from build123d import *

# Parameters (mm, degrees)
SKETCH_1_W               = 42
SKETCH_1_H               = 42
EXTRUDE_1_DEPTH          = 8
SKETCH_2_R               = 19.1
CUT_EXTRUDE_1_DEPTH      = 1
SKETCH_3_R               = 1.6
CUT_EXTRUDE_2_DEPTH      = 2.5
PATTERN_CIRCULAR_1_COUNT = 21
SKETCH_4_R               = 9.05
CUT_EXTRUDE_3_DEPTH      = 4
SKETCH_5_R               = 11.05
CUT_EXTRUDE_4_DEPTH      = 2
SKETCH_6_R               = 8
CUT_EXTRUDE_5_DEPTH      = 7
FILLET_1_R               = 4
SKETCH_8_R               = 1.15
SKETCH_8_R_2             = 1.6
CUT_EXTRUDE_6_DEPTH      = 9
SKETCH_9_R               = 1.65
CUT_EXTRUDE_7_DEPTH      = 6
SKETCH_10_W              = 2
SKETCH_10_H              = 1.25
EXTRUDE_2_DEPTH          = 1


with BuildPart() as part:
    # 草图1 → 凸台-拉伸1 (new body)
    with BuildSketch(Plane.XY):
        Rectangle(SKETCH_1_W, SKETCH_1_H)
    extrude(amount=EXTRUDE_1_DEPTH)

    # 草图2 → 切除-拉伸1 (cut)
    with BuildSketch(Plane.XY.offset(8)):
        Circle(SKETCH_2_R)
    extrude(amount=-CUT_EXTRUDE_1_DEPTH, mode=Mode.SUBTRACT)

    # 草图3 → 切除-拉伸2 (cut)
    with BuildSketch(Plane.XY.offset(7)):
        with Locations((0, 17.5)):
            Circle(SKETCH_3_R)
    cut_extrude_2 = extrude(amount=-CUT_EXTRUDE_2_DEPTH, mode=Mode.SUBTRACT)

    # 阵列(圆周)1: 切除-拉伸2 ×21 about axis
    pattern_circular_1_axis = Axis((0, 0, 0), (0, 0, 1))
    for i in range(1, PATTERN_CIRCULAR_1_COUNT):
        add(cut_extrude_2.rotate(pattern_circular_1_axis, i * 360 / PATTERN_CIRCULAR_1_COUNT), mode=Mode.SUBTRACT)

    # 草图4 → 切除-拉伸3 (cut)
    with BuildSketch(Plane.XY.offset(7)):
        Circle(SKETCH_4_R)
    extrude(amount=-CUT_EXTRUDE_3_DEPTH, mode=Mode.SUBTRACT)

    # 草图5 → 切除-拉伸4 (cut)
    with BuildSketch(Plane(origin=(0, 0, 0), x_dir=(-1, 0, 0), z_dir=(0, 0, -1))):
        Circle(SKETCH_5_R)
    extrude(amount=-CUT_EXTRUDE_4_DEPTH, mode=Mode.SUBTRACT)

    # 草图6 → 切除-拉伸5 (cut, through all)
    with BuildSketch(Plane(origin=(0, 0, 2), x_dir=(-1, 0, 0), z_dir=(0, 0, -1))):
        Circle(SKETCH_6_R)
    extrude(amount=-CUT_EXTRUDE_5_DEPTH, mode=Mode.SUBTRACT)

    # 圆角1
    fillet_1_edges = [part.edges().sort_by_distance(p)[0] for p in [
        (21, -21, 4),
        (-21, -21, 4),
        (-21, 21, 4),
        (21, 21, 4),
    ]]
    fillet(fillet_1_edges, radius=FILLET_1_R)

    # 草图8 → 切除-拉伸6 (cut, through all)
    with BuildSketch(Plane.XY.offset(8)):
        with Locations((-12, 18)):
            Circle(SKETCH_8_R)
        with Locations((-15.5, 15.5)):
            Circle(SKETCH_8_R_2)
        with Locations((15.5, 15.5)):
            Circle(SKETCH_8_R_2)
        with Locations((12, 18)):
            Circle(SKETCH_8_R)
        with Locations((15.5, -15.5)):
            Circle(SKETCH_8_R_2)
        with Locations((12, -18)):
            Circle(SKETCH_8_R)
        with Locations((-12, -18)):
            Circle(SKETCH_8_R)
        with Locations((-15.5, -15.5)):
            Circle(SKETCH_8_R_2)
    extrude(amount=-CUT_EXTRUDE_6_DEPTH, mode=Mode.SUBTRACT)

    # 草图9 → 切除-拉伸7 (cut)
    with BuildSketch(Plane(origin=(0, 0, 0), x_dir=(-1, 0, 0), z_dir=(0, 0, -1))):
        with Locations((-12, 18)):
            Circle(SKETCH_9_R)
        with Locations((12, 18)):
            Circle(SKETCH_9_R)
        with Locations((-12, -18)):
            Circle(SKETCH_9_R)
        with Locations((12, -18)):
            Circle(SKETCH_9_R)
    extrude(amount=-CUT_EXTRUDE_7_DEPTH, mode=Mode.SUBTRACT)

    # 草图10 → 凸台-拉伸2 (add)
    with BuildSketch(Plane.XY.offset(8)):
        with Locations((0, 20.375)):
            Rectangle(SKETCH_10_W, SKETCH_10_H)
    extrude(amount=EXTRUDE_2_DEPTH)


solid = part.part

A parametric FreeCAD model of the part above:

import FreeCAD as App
import Part
import Sketcher
from FreeCAD import Vector


def edges_at(feature, points):
    """Names of the edges that pass closest to the given points."""
    edges = feature.Shape.Edges
    near = lambda p: min(range(len(edges)), key=lambda i: edges[i].distToShape(Part.Vertex(*p))[0])
    return sorted({f"Edge{near(p) + 1}" for p in points})


def add_polygon(sketch, points):
    """Adds a closed chain of lines whose ends are joined by coincident constraints."""
    first, n = sketch.GeometryCount, len(points)
    for a, b in zip(points, points[1:] + points[:1]):
        sketch.addGeometry(Part.LineSegment(App.Vector(*a, 0), App.Vector(*b, 0)), False)
    for i in range(n):
        sketch.addConstraint(Sketcher.Constraint("Coincident", first + i, 2, first + (i + 1) % n, 1))

doc = App.newDocument("Part")
body = doc.addObject("PartDesign::Body", "Body")

# Sketch on XY plane
sketch1 = body.newObject("Sketcher::SketchObject", "Sketch")
sketch1.AttachmentSupport = (doc.getObject("XY_Plane"), [""])
sketch1.MapMode = "FlatFace"
add_polygon(sketch1, [(-21, 21), (-21, -21), (21, -21), (21, 21)])  # lines 0-3
sketch1.addConstraint([
    Sketcher.Constraint("Vertical", 0),
    Sketcher.Constraint("Horizontal", 1),
    Sketcher.Constraint("Vertical", 2),
    Sketcher.Constraint("Horizontal", 3),
    Sketcher.Constraint("Symmetric", 0, 2, 2, 2, -1, 1),
    Sketcher.Constraint("Equal", 3, 0),
    Sketcher.Constraint("DistanceX", 1, 1, 1, 2, 42.0),
])
pad1 = body.newObject("PartDesign::Pad", "Pad")
pad1.Profile = sketch1
pad1.Length = 8

# Sketch on XY plane
sketch2 = body.newObject("Sketcher::SketchObject", "Sketch001")
sketch2.AttachmentSupport = (doc.getObject("XY_Plane"), [""])
sketch2.MapMode = "FlatFace"
sketch2.AttachmentOffset = App.Placement(Vector(0, 0, 8), App.Rotation())
sketch2.addGeometry(Part.Circle(Vector(0, 0, 0), Vector(0, 0, 1), 19.1), False)
sketch2.addConstraint([
    Sketcher.Constraint("Coincident", 0, 3, -1, 1),
    Sketcher.Constraint("Diameter", 0, 38.2),
])
pocket1 = body.newObject("PartDesign::Pocket", "Pocket")
pocket1.Profile = sketch2
pocket1.Length = 1

# Sketch on XY plane
sketch3 = body.newObject("Sketcher::SketchObject", "Sketch002")
sketch3.AttachmentSupport = (doc.getObject("XY_Plane"), [""])
sketch3.MapMode = "FlatFace"
sketch3.AttachmentOffset = App.Placement(Vector(0, 0, 7), App.Rotation())
sketch3.addGeometry(Part.Circle(Vector(0, 17.5, 0), Vector(0, 0, 1), 1.6), False)
sketch3.addConstraint([
    Sketcher.Constraint("PointOnObject", 0, 3, -2),
    Sketcher.Constraint("Diameter", 0, 3.2),
    Sketcher.Constraint("DistanceY", -1, 1, 0, 3, 17.5),
])
pocket2 = body.newObject("PartDesign::Pocket", "Pocket001")
pocket2.Profile = sketch3
pocket2.Length = 2.5
doc.recompute()

polarpattern = body.newObject("PartDesign::PolarPattern", "PolarPattern")
polarpattern.Originals = [pocket2]
polarpattern.Axis = (doc.getObject("Z_Axis"), [""])
polarpattern.Angle = 360
polarpattern.Occurrences = 21
body.Tip = polarpattern

# Sketch on XY plane
sketch4 = body.newObject("Sketcher::SketchObject", "Sketch003")
sketch4.AttachmentSupport = (doc.getObject("XY_Plane"), [""])
sketch4.MapMode = "FlatFace"
sketch4.AttachmentOffset = App.Placement(Vector(0, 0, 7), App.Rotation())
sketch4.addGeometry(Part.Circle(Vector(0, 0, 0), Vector(0, 0, 1), 9.05), False)
sketch4.addConstraint([
    Sketcher.Constraint("Coincident", 0, 3, -1, 1),
    Sketcher.Constraint("Diameter", 0, 18.1),
])
pocket3 = body.newObject("PartDesign::Pocket", "Pocket002")
pocket3.Profile = sketch4
pocket3.Length = 4

# Sketch on XY plane
sketch5 = body.newObject("Sketcher::SketchObject", "Sketch004")
sketch5.AttachmentSupport = (doc.getObject("XY_Plane"), [""])
sketch5.MapMode = "FlatFace"
sketch5.addGeometry(Part.Circle(Vector(0, 0, 0), Vector(0, 0, 1), 11.05), False)
sketch5.addConstraint([
    Sketcher.Constraint("Coincident", 0, 3, -1, 1),
    Sketcher.Constraint("Diameter", 0, 22.1),
])
pocket4 = body.newObject("PartDesign::Pocket", "Pocket003")
pocket4.Profile = sketch5
pocket4.Length = 2
pocket4.Reversed = True

# Sketch on XY plane
sketch6 = body.newObject("Sketcher::SketchObject", "Sketch005")
sketch6.AttachmentSupport = (doc.getObject("XY_Plane"), [""])
sketch6.MapMode = "FlatFace"
sketch6.AttachmentOffset = App.Placement(Vector(0, 0, 2), App.Rotation())
sketch6.addGeometry(Part.Circle(Vector(0, 0, 0), Vector(0, 0, 1), 8), False)
sketch6.addConstraint([
    Sketcher.Constraint("Coincident", 0, 3, -1, 1),
    Sketcher.Constraint("Diameter", 0, 16.0),
])
pocket5 = body.newObject("PartDesign::Pocket", "Pocket004")
pocket5.Profile = sketch6
pocket5.Type = "ThroughAll"
pocket5.Reversed = True
doc.recompute()

fillet = body.newObject("PartDesign::Fillet", "Fillet")
fillet.Base = (pocket5, edges_at(pocket5, [
    (21, -21, 4),
    (-21, -21, 4),
    (-21, 21, 4),
    (21, 21, 4),
]))
fillet.Radius = 4

# Sketch on XY plane
sketch7 = body.newObject("Sketcher::SketchObject", "Sketch006")
sketch7.AttachmentSupport = (doc.getObject("XY_Plane"), [""])
sketch7.MapMode = "FlatFace"
sketch7.AttachmentOffset = App.Placement(Vector(0, 0, 8), App.Rotation())
sketch7.addGeometry([
    Part.Circle(Vector(-12, 18, 0), Vector(0, 0, 1), 1.15),  # 0
    Part.Circle(Vector(-15.5, 15.5, 0), Vector(0, 0, 1), 1.6),  # 1
    Part.Circle(Vector(15.5, 15.5, 0), Vector(0, 0, 1), 1.6),  # 2
    Part.Circle(Vector(12, 18, 0), Vector(0, 0, 1), 1.15),  # 3
    Part.Circle(Vector(15.5, -15.5, 0), Vector(0, 0, 1), 1.6),  # 4
    Part.Circle(Vector(12, -18, 0), Vector(0, 0, 1), 1.15),  # 5
    Part.Circle(Vector(-12, -18, 0), Vector(0, 0, 1), 1.15),  # 6
    Part.Circle(Vector(-15.5, -15.5, 0), Vector(0, 0, 1), 1.6),  # 7
], False)
sketch7.addConstraint([
    Sketcher.Constraint("Equal", 1, 2),
    Sketcher.Constraint("Equal", 0, 3),
    Sketcher.Constraint("Equal", 2, 4),
    Sketcher.Constraint("Equal", 3, 5),
    Sketcher.Constraint("Equal", 5, 6),
    Sketcher.Constraint("Equal", 4, 7),
    Sketcher.Constraint("Symmetric", 1, 3, 4, 3, -1, 1),
    Sketcher.Constraint("Symmetric", 0, 3, 5, 3, -1, 1),
    Sketcher.Constraint("Symmetric", 3, 3, 6, 3, -1, 1),
    Sketcher.Constraint("Symmetric", 2, 3, 7, 3, -1, 1),
    Sketcher.Constraint("Symmetric", 1, 3, 2, 3, -2),
    Sketcher.Constraint("Symmetric", 0, 3, 3, 3, -2),
    Sketcher.Constraint("Diameter", 0, 2.3),
    Sketcher.Constraint("Diameter", 1, 3.2),
    Sketcher.Constraint("DistanceX", 0, 3, -1, 1, 12.0),
    Sketcher.Constraint("DistanceY", -1, 1, 0, 3, 18.0),
    Sketcher.Constraint("DistanceX", 1, 3, 2, 3, 31.0),
    Sketcher.Constraint("DistanceY", 4, 3, 2, 3, 31.0),
])
pocket6 = body.newObject("PartDesign::Pocket", "Pocket005")
pocket6.Profile = sketch7
pocket6.Type = "ThroughAll"

# Sketch on XY plane
sketch8 = body.newObject("Sketcher::SketchObject", "Sketch007")
sketch8.AttachmentSupport = (doc.getObject("XY_Plane"), [""])
sketch8.MapMode = "FlatFace"
sketch8.addGeometry([
    Part.Circle(Vector(12, 18, 0), Vector(0, 0, 1), 1.65),
    Part.Circle(Vector(-12, 18, 0), Vector(0, 0, 1), 1.65),
    Part.Circle(Vector(12, -18, 0), Vector(0, 0, 1), 1.65),
    Part.Circle(Vector(-12, -18, 0), Vector(0, 0, 1), 1.65),
], False)
sketch8.addConstraint([
    Sketcher.Constraint("Equal", 0, 1),
    Sketcher.Constraint("Equal", 1, 2),
    Sketcher.Constraint("Equal", 2, 3),
    Sketcher.Constraint("Symmetric", 1, 3, 2, 3, -1, 1),
    Sketcher.Constraint("Symmetric", 0, 3, 3, 3, -1, 1),
    Sketcher.Constraint("Symmetric", 0, 3, 1, 3, -2),
    Sketcher.Constraint("Diameter", 0, 3.3),
    Sketcher.Constraint("DistanceX", -1, 1, 0, 3, 12.0),
    Sketcher.Constraint("DistanceY", -1, 1, 0, 3, 18.0),
])
pocket7 = body.newObject("PartDesign::Pocket", "Pocket006")
pocket7.Profile = sketch8
pocket7.Length = 6
pocket7.Reversed = True

# Sketch on XY plane
sketch9 = body.newObject("Sketcher::SketchObject", "Sketch008")
sketch9.AttachmentSupport = (doc.getObject("XY_Plane"), [""])
sketch9.MapMode = "FlatFace"
sketch9.AttachmentOffset = App.Placement(Vector(0, 0, 8), App.Rotation())
add_polygon(sketch9, [(-1, 21), (-1, 19.75), (1, 19.75), (1, 21)])  # lines 0-3
sketch9.addConstraint([
    Sketcher.Constraint("Vertical", 0),
    Sketcher.Constraint("Horizontal", 1),
    Sketcher.Constraint("Vertical", 2),
    Sketcher.Constraint("Horizontal", 3),
    Sketcher.Constraint("DistanceX", 1, 1, 1, 2, 2.0),
    Sketcher.Constraint("DistanceX", 0, 2, -1, 1, 1.0),
    Sketcher.Constraint("DistanceY", -1, 1, 2, 2, 21.0),
    Sketcher.Constraint("DistanceY", 0, 2, 0, 1, 1.25),
])
pad2 = body.newObject("PartDesign::Pad", "Pad001")
pad2.Profile = sketch9
pad2.Length = 1

doc.recompute()
